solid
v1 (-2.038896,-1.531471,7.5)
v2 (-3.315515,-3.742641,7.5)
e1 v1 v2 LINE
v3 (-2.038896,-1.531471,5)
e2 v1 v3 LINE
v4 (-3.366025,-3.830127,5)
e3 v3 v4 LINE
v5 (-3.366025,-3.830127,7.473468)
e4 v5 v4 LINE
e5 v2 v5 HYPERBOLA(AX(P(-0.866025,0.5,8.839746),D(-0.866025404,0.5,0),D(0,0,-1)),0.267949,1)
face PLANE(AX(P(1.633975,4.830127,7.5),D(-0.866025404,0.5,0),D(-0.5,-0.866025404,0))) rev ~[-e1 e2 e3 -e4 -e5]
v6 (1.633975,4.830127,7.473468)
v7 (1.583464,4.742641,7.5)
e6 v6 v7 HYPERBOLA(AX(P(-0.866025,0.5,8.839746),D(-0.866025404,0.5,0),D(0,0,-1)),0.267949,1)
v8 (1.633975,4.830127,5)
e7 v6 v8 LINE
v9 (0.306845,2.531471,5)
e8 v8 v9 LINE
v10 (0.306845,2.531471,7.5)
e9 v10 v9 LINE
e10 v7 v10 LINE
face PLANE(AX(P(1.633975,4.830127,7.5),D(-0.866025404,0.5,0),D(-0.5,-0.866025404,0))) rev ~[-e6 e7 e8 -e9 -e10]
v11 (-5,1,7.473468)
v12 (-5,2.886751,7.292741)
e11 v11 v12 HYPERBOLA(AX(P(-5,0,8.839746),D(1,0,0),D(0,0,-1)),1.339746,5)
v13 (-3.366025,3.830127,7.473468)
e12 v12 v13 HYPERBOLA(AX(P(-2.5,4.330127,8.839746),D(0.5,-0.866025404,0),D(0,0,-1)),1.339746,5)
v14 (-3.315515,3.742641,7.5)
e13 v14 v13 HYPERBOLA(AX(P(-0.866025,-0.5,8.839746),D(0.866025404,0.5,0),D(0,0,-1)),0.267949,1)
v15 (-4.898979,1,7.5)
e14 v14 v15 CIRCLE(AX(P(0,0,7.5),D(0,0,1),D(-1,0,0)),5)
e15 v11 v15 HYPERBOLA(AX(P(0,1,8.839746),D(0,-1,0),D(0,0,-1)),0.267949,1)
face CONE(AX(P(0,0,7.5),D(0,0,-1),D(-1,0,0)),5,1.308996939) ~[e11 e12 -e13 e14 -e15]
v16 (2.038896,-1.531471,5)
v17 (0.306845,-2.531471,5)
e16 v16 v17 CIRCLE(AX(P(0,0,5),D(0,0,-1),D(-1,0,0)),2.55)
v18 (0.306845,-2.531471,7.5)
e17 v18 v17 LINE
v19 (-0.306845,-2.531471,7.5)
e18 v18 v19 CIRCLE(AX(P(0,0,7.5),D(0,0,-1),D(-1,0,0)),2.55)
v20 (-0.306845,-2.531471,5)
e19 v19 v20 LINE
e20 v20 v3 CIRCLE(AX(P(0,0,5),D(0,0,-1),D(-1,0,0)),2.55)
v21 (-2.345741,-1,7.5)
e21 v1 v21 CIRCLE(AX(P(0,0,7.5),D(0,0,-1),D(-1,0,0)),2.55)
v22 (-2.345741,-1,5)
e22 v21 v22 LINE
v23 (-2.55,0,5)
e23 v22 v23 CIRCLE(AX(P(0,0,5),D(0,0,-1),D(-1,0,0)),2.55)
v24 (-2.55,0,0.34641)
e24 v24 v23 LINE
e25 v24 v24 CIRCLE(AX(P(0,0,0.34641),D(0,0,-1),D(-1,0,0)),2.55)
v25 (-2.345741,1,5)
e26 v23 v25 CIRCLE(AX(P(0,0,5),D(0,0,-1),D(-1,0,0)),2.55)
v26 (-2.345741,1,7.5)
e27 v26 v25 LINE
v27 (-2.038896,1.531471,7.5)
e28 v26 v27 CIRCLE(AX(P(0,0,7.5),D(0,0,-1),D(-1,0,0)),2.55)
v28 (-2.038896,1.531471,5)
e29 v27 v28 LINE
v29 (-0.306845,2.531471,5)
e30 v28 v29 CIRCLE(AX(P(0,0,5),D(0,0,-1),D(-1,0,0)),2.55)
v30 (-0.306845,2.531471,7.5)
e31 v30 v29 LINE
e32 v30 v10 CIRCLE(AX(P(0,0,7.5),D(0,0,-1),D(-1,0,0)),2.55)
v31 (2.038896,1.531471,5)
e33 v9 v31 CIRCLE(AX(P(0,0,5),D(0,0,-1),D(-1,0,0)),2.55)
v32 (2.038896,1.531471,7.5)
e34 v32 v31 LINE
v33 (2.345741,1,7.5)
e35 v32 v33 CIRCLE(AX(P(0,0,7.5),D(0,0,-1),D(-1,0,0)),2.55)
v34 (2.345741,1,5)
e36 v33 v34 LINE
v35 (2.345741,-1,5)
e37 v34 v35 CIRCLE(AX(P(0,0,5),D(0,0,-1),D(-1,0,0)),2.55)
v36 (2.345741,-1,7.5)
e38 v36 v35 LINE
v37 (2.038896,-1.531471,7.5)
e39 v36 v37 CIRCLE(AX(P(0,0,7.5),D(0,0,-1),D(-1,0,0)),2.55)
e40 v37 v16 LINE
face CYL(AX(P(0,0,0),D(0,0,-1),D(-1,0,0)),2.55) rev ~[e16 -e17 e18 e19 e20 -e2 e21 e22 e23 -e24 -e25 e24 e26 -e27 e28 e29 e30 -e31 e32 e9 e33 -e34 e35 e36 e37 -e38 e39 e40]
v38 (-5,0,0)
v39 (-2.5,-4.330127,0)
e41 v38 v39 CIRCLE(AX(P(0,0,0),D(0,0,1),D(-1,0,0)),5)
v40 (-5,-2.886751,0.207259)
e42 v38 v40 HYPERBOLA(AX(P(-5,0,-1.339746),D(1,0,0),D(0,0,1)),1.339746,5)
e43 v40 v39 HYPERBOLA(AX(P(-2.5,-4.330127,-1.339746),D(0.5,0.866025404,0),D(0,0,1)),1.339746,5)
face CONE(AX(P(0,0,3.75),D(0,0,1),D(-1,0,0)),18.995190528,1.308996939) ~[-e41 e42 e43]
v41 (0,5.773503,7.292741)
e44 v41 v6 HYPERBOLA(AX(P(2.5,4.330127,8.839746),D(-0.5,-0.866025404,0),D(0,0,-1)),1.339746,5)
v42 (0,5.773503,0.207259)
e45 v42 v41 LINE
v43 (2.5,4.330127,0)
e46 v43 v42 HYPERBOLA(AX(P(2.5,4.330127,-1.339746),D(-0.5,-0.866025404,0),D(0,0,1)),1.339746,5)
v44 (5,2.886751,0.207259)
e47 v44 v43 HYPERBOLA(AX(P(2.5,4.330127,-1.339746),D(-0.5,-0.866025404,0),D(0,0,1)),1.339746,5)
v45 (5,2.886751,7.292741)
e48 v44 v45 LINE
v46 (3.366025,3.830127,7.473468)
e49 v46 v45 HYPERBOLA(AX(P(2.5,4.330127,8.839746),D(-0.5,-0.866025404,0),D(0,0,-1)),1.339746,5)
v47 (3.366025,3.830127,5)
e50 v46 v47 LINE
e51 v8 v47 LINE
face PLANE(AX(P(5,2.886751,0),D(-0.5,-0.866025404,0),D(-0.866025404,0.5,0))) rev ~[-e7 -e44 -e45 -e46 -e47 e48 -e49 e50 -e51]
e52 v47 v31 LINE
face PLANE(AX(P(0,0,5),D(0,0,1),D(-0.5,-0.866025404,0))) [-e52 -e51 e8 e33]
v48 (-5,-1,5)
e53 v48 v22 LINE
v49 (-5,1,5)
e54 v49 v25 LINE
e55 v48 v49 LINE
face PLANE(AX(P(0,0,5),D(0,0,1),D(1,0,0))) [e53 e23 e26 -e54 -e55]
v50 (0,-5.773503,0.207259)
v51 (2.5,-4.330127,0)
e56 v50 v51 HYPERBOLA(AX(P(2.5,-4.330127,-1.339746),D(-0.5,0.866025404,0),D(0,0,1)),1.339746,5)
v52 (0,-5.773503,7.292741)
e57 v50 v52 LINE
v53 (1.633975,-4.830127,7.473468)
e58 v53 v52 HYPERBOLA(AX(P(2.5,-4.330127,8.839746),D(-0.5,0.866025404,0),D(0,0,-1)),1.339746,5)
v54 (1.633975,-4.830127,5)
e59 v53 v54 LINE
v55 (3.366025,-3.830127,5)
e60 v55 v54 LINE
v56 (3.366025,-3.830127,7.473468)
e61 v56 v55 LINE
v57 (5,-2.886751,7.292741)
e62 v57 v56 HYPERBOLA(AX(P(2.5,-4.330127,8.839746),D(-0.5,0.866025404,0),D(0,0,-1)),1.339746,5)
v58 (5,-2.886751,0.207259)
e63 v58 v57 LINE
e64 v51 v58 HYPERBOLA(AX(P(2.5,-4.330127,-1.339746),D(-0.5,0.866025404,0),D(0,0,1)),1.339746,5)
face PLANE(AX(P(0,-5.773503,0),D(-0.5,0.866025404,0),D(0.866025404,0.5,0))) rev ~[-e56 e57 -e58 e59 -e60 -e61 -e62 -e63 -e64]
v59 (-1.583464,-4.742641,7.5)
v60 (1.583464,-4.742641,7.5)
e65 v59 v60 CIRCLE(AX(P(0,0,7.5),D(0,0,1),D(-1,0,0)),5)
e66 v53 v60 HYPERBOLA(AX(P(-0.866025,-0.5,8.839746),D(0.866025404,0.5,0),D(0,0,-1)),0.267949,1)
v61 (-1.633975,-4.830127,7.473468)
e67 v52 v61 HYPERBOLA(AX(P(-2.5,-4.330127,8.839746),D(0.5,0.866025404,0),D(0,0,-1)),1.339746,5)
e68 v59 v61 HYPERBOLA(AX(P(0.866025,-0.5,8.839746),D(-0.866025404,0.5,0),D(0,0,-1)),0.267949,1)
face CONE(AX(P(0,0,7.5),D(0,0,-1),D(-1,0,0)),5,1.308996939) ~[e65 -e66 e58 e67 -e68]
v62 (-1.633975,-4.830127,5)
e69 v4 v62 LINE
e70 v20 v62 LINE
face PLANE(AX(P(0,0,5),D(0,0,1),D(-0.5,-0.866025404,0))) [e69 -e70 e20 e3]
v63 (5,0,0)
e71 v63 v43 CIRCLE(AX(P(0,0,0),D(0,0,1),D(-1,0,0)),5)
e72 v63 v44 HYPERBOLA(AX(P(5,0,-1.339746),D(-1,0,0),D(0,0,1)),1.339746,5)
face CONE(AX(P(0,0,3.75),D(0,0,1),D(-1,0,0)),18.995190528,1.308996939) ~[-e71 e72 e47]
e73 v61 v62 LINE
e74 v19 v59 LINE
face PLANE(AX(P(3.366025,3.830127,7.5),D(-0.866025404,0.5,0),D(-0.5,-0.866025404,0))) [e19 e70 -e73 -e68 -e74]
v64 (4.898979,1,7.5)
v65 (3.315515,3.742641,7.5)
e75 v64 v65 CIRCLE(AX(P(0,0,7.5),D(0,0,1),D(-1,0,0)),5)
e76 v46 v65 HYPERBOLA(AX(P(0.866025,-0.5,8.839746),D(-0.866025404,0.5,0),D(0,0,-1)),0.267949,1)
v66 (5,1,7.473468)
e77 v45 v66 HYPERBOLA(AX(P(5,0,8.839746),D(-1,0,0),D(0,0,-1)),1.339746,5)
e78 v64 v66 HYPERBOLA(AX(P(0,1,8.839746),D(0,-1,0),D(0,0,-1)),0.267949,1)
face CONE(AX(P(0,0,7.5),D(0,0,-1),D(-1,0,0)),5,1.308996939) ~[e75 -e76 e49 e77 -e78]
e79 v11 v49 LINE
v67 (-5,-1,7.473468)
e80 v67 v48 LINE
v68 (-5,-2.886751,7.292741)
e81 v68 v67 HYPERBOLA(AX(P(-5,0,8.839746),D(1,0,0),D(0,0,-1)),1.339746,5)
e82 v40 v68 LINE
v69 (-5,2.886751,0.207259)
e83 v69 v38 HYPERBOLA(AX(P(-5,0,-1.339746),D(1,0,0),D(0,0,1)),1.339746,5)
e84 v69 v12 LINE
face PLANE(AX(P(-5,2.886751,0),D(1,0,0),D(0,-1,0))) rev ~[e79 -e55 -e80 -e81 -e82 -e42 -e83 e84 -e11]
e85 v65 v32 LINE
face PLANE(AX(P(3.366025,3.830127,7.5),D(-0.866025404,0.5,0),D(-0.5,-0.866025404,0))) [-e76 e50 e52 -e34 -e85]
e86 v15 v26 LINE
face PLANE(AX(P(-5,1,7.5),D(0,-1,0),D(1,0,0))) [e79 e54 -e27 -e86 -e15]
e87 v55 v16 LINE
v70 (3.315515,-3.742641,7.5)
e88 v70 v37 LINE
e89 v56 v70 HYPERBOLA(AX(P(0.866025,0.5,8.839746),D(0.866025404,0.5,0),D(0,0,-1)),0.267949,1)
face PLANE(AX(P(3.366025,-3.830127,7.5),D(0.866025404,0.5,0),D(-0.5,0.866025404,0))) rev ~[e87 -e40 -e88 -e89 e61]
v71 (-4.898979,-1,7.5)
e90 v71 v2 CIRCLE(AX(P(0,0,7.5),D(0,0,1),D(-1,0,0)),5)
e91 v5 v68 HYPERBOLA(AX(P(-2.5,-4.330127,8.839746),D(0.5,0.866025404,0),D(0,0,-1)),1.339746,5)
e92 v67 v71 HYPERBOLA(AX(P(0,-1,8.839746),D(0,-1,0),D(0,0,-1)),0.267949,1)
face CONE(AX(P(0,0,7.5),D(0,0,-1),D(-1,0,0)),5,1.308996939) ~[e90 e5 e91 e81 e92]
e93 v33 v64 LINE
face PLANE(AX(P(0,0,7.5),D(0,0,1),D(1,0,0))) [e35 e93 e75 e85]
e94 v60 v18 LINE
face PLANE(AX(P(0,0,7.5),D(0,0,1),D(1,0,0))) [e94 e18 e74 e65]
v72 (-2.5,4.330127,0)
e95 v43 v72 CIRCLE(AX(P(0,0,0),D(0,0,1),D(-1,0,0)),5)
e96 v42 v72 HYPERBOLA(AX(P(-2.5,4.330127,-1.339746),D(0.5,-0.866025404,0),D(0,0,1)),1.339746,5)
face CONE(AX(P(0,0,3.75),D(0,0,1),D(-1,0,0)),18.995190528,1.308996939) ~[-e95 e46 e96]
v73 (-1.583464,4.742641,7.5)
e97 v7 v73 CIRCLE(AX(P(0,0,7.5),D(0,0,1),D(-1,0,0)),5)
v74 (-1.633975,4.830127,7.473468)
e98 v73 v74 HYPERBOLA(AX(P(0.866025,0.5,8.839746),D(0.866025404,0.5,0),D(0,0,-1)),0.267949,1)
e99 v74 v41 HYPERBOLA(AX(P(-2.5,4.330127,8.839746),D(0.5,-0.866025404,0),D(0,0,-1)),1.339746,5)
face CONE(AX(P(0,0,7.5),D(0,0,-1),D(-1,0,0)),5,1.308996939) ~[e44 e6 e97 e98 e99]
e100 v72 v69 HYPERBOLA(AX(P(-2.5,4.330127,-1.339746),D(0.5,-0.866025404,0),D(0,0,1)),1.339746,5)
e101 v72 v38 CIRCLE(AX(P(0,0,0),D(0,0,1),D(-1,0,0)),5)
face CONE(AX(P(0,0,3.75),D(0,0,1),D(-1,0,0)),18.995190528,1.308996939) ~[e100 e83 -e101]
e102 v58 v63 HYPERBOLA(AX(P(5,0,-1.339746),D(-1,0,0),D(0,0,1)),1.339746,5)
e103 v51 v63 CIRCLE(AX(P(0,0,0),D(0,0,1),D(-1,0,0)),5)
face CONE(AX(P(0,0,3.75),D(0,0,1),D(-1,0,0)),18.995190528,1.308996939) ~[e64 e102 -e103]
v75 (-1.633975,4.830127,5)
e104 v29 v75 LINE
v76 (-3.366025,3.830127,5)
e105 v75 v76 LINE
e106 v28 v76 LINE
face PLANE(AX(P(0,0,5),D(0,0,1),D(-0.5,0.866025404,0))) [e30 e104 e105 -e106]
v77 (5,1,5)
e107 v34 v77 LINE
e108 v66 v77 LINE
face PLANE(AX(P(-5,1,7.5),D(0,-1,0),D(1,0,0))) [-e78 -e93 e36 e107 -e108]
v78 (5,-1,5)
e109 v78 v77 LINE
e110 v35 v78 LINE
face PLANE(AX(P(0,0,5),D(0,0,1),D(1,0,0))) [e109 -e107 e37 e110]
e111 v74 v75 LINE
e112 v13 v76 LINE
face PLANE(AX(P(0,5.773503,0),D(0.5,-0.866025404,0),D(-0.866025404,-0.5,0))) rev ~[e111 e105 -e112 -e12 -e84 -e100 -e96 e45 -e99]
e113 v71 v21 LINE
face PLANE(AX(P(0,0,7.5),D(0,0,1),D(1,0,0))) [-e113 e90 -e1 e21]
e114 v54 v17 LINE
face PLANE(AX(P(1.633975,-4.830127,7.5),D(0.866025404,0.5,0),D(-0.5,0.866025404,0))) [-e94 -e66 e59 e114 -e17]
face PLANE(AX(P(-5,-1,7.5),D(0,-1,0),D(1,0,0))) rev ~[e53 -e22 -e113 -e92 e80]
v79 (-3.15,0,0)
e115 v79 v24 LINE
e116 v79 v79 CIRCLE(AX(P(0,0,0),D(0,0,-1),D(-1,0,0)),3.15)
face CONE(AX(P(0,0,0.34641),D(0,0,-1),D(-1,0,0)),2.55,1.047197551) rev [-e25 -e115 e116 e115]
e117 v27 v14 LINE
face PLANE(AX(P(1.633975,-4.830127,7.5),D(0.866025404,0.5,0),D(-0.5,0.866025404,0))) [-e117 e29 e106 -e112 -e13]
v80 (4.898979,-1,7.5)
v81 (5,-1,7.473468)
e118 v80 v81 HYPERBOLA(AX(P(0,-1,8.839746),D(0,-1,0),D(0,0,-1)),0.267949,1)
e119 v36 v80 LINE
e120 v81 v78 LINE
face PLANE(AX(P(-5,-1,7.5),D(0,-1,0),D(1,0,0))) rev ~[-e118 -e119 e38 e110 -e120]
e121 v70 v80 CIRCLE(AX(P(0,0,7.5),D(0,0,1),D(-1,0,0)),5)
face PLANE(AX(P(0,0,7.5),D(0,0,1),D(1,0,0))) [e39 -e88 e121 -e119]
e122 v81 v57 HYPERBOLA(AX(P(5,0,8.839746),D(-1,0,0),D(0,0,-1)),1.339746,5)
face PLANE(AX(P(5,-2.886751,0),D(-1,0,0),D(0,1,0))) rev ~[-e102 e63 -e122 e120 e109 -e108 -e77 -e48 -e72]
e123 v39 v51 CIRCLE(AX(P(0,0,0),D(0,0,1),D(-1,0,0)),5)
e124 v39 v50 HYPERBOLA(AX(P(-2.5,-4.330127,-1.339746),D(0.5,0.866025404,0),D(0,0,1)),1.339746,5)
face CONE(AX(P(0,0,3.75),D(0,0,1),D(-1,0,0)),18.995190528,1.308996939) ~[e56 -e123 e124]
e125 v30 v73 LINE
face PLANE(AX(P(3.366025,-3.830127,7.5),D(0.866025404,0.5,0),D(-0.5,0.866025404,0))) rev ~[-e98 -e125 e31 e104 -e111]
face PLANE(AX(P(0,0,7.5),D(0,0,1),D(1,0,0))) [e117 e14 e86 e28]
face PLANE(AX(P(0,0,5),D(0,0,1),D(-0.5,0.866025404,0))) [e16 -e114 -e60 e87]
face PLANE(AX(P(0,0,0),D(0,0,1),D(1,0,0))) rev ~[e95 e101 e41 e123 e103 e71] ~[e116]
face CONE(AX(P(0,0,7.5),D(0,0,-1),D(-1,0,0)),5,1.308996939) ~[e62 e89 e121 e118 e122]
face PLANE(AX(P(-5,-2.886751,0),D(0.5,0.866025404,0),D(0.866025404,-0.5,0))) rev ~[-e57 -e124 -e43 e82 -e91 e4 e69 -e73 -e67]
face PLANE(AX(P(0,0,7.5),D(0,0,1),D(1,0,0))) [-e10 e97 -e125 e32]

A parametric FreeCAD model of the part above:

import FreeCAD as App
import Part
import Sketcher
Q = App.Units.Quantity


def edges_at(feature, points):
    """Names of the edges that pass closest to the given points."""
    edges = feature.Shape.Edges
    near = lambda p: min(range(len(edges)), key=lambda i: edges[i].distToShape(Part.Vertex(*p))[0])
    return sorted({f"Edge{near(p) + 1}" for p in points})


def add_polygon(sketch, points):
    """Adds a closed chain of lines whose ends are joined by coincident constraints."""
    first, n = sketch.GeometryCount, len(points)
    for a, b in zip(points, points[1:] + points[:1]):
        sketch.addGeometry(Part.LineSegment(App.Vector(*a, 0), App.Vector(*b, 0)), False)
    for i in range(n):
        sketch.addConstraint(Sketcher.Constraint("Coincident", first + i, 2, first + (i + 1) % n, 1))

doc = App.newDocument("Part")
body = doc.addObject("PartDesign::Body", "Body")

sketch1 = doc.addObject("Sketcher::SketchObject", "Sketch")
body.addObject(sketch1)
sketch1.AttachmentSupport = (doc.XY_Plane, [""])
sketch1.MapMode = "FlatFace"
add_polygon(sketch1, [(5, -2.886751), (5, 2.886751), (0, 5.773503), (-5, 2.886751), (-5, -2.886751), (0, -5.773503)])
sketch1.addConstraint([
    Sketcher.Constraint("Vertical", 0),
    Sketcher.Constraint("Vertical", 3),
    Sketcher.Constraint("Symmetric", 0, 2, 3, 2, -1, 1),
    Sketcher.Constraint("Symmetric", 1, 2, 4, 2, -1, 1),
    Sketcher.Constraint("PointOnObject", 1, 2, -2),
    Sketcher.Constraint("Parallel", 2, 5),
    Sketcher.Constraint("Horizontal", 0, 2, 2, 2),
    Sketcher.Constraint("Angle", 1, Q("150 deg")),
    Sketcher.Constraint("DistanceX", -1, 1, 0, 2, Q("5 mm")),
    Sketcher.Constraint("DistanceY", 0, 1, 0, 2, Q("5.773503 mm")),
])
pad1 = doc.addObject("PartDesign::Pad", "Pad")
body.addObject(pad1)
pad1.Profile = sketch1
pad1.Length = 7.5

sketch2 = doc.addObject("Sketcher::SketchObject", "Sketch001")
body.addObject(sketch2)
sketch2.AttachmentSupport = (doc.XZ_Plane, [""])
sketch2.MapMode = "FlatFace"
add_polygon(sketch2, [(-18.995191, 3.75), (-5, 0), (-18.995191, 0)])
add_polygon(sketch2, [(-5, 7.5), (-18.995191, 3.75), (-18.995191, 7.5)])
sketch2.addConstraint([
    Sketcher.Constraint("Horizontal", 1),
    Sketcher.Constraint("Vertical", 2),
    Sketcher.Constraint("Vertical", 4),
    Sketcher.Constraint("Horizontal", 5),
    Sketcher.Constraint("Coincident", 3, 2, 2, 2),
    Sketcher.Constraint("PointOnObject", 0, 2, -1),
    Sketcher.Constraint("Vertical", 0, 2, 5, 2),
    Sketcher.Constraint("Equal", 2, 4),
    Sketcher.Constraint("Angle", 0, Q("-15 deg")),
    Sketcher.Constraint("DistanceX", 0, 2, -1, 1, Q("5 mm")),
    Sketcher.Constraint("DistanceY", 2, 1, 2, 2, Q("3.75 mm")),
])
groove = doc.addObject("PartDesign::Groove", "Groove")
body.addObject(groove)
groove.Profile = sketch2
groove.ReferenceAxis = (sketch2, ["V_Axis"])
groove.Angle = 360

sketch3 = doc.addObject("Sketcher::SketchObject", "Sketch002")
body.addObject(sketch3)
sketch3.AttachmentSupport = (doc.XY_Plane, [""])
sketch3.MapMode = "FlatFace"
sketch3.addGeometry(Part.Circle(App.Vector(0, 0, 0), App.Vector(0, 0, 1), 2.55), False)
sketch3.addConstraint([
    Sketcher.Constraint("Coincident", 0, 3, -1, 1),
    Sketcher.Constraint("Diameter", 0, Q("5.1 mm")),
])
pocket1 = doc.addObject("PartDesign::Pocket", "Pocket")
body.addObject(pocket1)
pocket1.Profile = sketch3
pocket1.Type = "ThroughAll"
pocket1.Reversed = True

sketch4 = doc.addObject("Sketcher::SketchObject", "Sketch003")
body.addObject(sketch4)
sketch4.AttachmentSupport = (doc.XY_Plane, [""])
sketch4.MapMode = "FlatFace"
sketch4.AttachmentOffset = App.Placement(App.Vector(0, 0, 7.5), App.Rotation())
add_polygon(sketch4, [(-5, 1), (-5, -1), (5, -1), (5, 1)])
sketch4.addConstraint([
    Sketcher.Constraint("Vertical", 0),
    Sketcher.Constraint("Horizontal", 1),
    Sketcher.Constraint("Vertical", 2),
    Sketcher.Constraint("Horizontal", 3),
    Sketcher.Constraint("Symmetric", 0, 2, 2, 2, -1, 1),
    Sketcher.Constraint("DistanceX", 1, 1, 1, 2, Q("10 mm")),
    Sketcher.Constraint("DistanceY", 0, 2, 0, 1, Q("2 mm")),
])
pocket2 = doc.addObject("PartDesign::Pocket", "Pocket001")
body.addObject(pocket2)
pocket2.Profile = sketch4
pocket2.Length = 2.5
doc.recompute()

polarpattern = doc.addObject("PartDesign::PolarPattern", "PolarPattern")
body.addObject(polarpattern)
polarpattern.Originals = [pocket2]
polarpattern.Axis = (doc.Z_Axis, [""])
polarpattern.Angle = 360
polarpattern.Occurrences = 3
body.Tip = polarpattern
doc.recompute()

chamfer = doc.addObject("PartDesign::Chamfer", "Chamfer")
body.addObject(chamfer)
chamfer.Base = (polarpattern, edges_at(polarpattern, [(2.55, 0, 0)]))
chamfer.ChamferType = "Two distances"
chamfer.Size = 0.6
chamfer.Size2 = 0.34641

doc.recompute()
